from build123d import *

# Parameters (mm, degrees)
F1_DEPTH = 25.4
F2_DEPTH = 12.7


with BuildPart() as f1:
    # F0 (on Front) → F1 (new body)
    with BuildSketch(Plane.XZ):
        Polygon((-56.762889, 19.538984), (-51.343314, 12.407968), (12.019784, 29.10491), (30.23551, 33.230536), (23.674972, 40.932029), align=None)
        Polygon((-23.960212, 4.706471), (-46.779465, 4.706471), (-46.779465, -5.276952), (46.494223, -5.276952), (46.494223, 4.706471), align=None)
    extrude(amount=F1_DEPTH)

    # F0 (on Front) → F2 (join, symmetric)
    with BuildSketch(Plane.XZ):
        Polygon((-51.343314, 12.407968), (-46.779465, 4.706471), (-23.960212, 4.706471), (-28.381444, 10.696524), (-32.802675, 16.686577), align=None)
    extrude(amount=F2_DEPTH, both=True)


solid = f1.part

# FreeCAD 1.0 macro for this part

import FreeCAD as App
import Part
import Sketcher
from FreeCAD import Vector
Q = App.Units.Quantity


def add_polygon(sketch, points):
    """Adds a closed chain of lines whose ends are joined by coincident constraints."""
    first, n = sketch.GeometryCount, len(points)
    for a, b in zip(points, points[1:] + points[:1]):
        sketch.addGeometry(Part.LineSegment(App.Vector(*a, 0), App.Vector(*b, 0)), False)
    for i in range(n):
        sketch.addConstraint(Sketcher.Constraint("Coincident", first + i, 2, first + (i + 1) % n, 1))

doc = App.newDocument("Part")
params = doc.addObject("Spreadsheet::Sheet", "Params")
for row, (alias, value) in enumerate([
    ("pad1_length", "1 in"),
    ("pad2_length", "1 in"),
], start=1):
    params.set(f"A{row}", alias)
    params.set(f"B{row}", "=" + value)
    params.setAlias(f"B{row}", alias)

body = doc.addObject("PartDesign::Body", "Body")
body.AllowCompound = True

sketch1 = doc.addObject("Sketcher::SketchObject", "Sketch")
body.addObject(sketch1)
sketch1.AttachmentSupport = (doc.XZ_Plane, [""])
sketch1.MapMode = "FlatFace"
add_polygon(sketch1, [(-57, 20), (-51, 12), (12, 29), (30, 33), (24, 41)])
add_polygon(sketch1, [(-47, 5), (-47, -5), (46, -5), (46, 5)])
sketch1.addConstraint(Sketcher.Constraint("Vertical", 5))
sketch1.addConstraint(Sketcher.Constraint("Horizontal", 6))
sketch1.addConstraint(Sketcher.Constraint("Vertical", 7))
sketch1.addConstraint(Sketcher.Constraint("Horizontal", 8))
sketch1.addConstraint(Sketcher.Constraint("Distance", 3, Q("10.116998 mm")))
sketch1.addConstraint(Sketcher.Constraint("DistanceX", 4, 2, 2, 2, Q("86.998399 mm")))
sketch1.addConstraint(Sketcher.Constraint("Distance", 0, Q("8.956739 mm")))
sketch1.addConstraint(Sketcher.Constraint("Distance", 4, Q("83.234079 mm")))
sketch1.addConstraint(Sketcher.Constraint("DistanceX", 6, 1, 6, 2, Q("93.273688 mm")))
sketch1.addConstraint(Sketcher.Constraint("DistanceY", 5, 2, 5, 1, Q("9.983423 mm")))
sketch1.addConstraint(Sketcher.Constraint("DistanceY", -1, 1, 1, 2, Q("29.10491 mm")))
sketch1.addConstraint(Sketcher.Constraint("DistanceX", -1, 1, 2, 2, Q("30.23551 mm")))
sketch1.addConstraint(Sketcher.Constraint("DistanceY", -1, 1, 3, 2, Q("40.932029 mm")))
sketch1.addConstraint(Sketcher.Constraint("DistanceY", 5, 2, -1, 1, Q("5.276952 mm")))
sketch1.addConstraint(Sketcher.Constraint("DistanceY", 0, 2, 1, 2, Q("16.696942 mm")))
sketch1.addConstraint(Sketcher.Constraint("DistanceY", 0, 2, 2, 2, Q("20.822568 mm")))
sketch1.addConstraint(Sketcher.Constraint("DistanceX", 1, 2, 3, 2, Q("11.655188 mm")))
sketch1.addConstraint(Sketcher.Constraint("DistanceX", 0, 2, 5, 2, Q("4.563849 mm")))
pad1 = doc.addObject("PartDesign::Pad", "Pad")
body.addObject(pad1)
pad1.Profile = sketch1
pad1.setExpression("Length", "Params.pad1_length")

sketch2 = doc.addObject("Sketcher::SketchObject", "Sketch001")
body.addObject(sketch2)
sketch2.AttachmentSupport = (doc.XZ_Plane, [""])
sketch2.MapMode = "FlatFace"
add_polygon(sketch2, [(-51, 12), (-47, 5), (-24, 5), (-28, 11), (-33, 17)])
sketch2.addConstraint(Sketcher.Constraint("Horizontal", 1))
sketch2.addConstraint(Sketcher.Constraint("Parallel", 2, 3))
sketch2.addConstraint(Sketcher.Constraint("Equal", 2, 3))
sketch2.addConstraint(Sketcher.Constraint("Distance", 2, Q("7.445 mm")))
sketch2.addConstraint(Sketcher.Constraint("Distance", 4, Q("19.027921 mm")))
sketch2.addConstraint(Sketcher.Constraint("DistanceX", 1, 1, 1, 2, Q("22.819253 mm")))
sketch2.addConstraint(Sketcher.Constraint("DistanceY", -1, 1, 0, 2, Q("4.706471 mm")))
sketch2.addConstraint(Sketcher.Constraint("DistanceX", 1, 2, -1, 1, Q("23.960212 mm")))
sketch2.addConstraint(Sketcher.Constraint("DistanceX", 2, 2, 1, 2, Q("4.421232 mm")))
sketch2.addConstraint(Sketcher.Constraint("DistanceX", 4, 2, 0, 2, Q("4.563849 mm")))
pad2 = doc.addObject("PartDesign::Pad", "Pad001")
body.addObject(pad2)
pad2.Profile = sketch2
pad2.setExpression("Length", "Params.pad2_length")
pad2.Midplane = True

doc.recompute()
